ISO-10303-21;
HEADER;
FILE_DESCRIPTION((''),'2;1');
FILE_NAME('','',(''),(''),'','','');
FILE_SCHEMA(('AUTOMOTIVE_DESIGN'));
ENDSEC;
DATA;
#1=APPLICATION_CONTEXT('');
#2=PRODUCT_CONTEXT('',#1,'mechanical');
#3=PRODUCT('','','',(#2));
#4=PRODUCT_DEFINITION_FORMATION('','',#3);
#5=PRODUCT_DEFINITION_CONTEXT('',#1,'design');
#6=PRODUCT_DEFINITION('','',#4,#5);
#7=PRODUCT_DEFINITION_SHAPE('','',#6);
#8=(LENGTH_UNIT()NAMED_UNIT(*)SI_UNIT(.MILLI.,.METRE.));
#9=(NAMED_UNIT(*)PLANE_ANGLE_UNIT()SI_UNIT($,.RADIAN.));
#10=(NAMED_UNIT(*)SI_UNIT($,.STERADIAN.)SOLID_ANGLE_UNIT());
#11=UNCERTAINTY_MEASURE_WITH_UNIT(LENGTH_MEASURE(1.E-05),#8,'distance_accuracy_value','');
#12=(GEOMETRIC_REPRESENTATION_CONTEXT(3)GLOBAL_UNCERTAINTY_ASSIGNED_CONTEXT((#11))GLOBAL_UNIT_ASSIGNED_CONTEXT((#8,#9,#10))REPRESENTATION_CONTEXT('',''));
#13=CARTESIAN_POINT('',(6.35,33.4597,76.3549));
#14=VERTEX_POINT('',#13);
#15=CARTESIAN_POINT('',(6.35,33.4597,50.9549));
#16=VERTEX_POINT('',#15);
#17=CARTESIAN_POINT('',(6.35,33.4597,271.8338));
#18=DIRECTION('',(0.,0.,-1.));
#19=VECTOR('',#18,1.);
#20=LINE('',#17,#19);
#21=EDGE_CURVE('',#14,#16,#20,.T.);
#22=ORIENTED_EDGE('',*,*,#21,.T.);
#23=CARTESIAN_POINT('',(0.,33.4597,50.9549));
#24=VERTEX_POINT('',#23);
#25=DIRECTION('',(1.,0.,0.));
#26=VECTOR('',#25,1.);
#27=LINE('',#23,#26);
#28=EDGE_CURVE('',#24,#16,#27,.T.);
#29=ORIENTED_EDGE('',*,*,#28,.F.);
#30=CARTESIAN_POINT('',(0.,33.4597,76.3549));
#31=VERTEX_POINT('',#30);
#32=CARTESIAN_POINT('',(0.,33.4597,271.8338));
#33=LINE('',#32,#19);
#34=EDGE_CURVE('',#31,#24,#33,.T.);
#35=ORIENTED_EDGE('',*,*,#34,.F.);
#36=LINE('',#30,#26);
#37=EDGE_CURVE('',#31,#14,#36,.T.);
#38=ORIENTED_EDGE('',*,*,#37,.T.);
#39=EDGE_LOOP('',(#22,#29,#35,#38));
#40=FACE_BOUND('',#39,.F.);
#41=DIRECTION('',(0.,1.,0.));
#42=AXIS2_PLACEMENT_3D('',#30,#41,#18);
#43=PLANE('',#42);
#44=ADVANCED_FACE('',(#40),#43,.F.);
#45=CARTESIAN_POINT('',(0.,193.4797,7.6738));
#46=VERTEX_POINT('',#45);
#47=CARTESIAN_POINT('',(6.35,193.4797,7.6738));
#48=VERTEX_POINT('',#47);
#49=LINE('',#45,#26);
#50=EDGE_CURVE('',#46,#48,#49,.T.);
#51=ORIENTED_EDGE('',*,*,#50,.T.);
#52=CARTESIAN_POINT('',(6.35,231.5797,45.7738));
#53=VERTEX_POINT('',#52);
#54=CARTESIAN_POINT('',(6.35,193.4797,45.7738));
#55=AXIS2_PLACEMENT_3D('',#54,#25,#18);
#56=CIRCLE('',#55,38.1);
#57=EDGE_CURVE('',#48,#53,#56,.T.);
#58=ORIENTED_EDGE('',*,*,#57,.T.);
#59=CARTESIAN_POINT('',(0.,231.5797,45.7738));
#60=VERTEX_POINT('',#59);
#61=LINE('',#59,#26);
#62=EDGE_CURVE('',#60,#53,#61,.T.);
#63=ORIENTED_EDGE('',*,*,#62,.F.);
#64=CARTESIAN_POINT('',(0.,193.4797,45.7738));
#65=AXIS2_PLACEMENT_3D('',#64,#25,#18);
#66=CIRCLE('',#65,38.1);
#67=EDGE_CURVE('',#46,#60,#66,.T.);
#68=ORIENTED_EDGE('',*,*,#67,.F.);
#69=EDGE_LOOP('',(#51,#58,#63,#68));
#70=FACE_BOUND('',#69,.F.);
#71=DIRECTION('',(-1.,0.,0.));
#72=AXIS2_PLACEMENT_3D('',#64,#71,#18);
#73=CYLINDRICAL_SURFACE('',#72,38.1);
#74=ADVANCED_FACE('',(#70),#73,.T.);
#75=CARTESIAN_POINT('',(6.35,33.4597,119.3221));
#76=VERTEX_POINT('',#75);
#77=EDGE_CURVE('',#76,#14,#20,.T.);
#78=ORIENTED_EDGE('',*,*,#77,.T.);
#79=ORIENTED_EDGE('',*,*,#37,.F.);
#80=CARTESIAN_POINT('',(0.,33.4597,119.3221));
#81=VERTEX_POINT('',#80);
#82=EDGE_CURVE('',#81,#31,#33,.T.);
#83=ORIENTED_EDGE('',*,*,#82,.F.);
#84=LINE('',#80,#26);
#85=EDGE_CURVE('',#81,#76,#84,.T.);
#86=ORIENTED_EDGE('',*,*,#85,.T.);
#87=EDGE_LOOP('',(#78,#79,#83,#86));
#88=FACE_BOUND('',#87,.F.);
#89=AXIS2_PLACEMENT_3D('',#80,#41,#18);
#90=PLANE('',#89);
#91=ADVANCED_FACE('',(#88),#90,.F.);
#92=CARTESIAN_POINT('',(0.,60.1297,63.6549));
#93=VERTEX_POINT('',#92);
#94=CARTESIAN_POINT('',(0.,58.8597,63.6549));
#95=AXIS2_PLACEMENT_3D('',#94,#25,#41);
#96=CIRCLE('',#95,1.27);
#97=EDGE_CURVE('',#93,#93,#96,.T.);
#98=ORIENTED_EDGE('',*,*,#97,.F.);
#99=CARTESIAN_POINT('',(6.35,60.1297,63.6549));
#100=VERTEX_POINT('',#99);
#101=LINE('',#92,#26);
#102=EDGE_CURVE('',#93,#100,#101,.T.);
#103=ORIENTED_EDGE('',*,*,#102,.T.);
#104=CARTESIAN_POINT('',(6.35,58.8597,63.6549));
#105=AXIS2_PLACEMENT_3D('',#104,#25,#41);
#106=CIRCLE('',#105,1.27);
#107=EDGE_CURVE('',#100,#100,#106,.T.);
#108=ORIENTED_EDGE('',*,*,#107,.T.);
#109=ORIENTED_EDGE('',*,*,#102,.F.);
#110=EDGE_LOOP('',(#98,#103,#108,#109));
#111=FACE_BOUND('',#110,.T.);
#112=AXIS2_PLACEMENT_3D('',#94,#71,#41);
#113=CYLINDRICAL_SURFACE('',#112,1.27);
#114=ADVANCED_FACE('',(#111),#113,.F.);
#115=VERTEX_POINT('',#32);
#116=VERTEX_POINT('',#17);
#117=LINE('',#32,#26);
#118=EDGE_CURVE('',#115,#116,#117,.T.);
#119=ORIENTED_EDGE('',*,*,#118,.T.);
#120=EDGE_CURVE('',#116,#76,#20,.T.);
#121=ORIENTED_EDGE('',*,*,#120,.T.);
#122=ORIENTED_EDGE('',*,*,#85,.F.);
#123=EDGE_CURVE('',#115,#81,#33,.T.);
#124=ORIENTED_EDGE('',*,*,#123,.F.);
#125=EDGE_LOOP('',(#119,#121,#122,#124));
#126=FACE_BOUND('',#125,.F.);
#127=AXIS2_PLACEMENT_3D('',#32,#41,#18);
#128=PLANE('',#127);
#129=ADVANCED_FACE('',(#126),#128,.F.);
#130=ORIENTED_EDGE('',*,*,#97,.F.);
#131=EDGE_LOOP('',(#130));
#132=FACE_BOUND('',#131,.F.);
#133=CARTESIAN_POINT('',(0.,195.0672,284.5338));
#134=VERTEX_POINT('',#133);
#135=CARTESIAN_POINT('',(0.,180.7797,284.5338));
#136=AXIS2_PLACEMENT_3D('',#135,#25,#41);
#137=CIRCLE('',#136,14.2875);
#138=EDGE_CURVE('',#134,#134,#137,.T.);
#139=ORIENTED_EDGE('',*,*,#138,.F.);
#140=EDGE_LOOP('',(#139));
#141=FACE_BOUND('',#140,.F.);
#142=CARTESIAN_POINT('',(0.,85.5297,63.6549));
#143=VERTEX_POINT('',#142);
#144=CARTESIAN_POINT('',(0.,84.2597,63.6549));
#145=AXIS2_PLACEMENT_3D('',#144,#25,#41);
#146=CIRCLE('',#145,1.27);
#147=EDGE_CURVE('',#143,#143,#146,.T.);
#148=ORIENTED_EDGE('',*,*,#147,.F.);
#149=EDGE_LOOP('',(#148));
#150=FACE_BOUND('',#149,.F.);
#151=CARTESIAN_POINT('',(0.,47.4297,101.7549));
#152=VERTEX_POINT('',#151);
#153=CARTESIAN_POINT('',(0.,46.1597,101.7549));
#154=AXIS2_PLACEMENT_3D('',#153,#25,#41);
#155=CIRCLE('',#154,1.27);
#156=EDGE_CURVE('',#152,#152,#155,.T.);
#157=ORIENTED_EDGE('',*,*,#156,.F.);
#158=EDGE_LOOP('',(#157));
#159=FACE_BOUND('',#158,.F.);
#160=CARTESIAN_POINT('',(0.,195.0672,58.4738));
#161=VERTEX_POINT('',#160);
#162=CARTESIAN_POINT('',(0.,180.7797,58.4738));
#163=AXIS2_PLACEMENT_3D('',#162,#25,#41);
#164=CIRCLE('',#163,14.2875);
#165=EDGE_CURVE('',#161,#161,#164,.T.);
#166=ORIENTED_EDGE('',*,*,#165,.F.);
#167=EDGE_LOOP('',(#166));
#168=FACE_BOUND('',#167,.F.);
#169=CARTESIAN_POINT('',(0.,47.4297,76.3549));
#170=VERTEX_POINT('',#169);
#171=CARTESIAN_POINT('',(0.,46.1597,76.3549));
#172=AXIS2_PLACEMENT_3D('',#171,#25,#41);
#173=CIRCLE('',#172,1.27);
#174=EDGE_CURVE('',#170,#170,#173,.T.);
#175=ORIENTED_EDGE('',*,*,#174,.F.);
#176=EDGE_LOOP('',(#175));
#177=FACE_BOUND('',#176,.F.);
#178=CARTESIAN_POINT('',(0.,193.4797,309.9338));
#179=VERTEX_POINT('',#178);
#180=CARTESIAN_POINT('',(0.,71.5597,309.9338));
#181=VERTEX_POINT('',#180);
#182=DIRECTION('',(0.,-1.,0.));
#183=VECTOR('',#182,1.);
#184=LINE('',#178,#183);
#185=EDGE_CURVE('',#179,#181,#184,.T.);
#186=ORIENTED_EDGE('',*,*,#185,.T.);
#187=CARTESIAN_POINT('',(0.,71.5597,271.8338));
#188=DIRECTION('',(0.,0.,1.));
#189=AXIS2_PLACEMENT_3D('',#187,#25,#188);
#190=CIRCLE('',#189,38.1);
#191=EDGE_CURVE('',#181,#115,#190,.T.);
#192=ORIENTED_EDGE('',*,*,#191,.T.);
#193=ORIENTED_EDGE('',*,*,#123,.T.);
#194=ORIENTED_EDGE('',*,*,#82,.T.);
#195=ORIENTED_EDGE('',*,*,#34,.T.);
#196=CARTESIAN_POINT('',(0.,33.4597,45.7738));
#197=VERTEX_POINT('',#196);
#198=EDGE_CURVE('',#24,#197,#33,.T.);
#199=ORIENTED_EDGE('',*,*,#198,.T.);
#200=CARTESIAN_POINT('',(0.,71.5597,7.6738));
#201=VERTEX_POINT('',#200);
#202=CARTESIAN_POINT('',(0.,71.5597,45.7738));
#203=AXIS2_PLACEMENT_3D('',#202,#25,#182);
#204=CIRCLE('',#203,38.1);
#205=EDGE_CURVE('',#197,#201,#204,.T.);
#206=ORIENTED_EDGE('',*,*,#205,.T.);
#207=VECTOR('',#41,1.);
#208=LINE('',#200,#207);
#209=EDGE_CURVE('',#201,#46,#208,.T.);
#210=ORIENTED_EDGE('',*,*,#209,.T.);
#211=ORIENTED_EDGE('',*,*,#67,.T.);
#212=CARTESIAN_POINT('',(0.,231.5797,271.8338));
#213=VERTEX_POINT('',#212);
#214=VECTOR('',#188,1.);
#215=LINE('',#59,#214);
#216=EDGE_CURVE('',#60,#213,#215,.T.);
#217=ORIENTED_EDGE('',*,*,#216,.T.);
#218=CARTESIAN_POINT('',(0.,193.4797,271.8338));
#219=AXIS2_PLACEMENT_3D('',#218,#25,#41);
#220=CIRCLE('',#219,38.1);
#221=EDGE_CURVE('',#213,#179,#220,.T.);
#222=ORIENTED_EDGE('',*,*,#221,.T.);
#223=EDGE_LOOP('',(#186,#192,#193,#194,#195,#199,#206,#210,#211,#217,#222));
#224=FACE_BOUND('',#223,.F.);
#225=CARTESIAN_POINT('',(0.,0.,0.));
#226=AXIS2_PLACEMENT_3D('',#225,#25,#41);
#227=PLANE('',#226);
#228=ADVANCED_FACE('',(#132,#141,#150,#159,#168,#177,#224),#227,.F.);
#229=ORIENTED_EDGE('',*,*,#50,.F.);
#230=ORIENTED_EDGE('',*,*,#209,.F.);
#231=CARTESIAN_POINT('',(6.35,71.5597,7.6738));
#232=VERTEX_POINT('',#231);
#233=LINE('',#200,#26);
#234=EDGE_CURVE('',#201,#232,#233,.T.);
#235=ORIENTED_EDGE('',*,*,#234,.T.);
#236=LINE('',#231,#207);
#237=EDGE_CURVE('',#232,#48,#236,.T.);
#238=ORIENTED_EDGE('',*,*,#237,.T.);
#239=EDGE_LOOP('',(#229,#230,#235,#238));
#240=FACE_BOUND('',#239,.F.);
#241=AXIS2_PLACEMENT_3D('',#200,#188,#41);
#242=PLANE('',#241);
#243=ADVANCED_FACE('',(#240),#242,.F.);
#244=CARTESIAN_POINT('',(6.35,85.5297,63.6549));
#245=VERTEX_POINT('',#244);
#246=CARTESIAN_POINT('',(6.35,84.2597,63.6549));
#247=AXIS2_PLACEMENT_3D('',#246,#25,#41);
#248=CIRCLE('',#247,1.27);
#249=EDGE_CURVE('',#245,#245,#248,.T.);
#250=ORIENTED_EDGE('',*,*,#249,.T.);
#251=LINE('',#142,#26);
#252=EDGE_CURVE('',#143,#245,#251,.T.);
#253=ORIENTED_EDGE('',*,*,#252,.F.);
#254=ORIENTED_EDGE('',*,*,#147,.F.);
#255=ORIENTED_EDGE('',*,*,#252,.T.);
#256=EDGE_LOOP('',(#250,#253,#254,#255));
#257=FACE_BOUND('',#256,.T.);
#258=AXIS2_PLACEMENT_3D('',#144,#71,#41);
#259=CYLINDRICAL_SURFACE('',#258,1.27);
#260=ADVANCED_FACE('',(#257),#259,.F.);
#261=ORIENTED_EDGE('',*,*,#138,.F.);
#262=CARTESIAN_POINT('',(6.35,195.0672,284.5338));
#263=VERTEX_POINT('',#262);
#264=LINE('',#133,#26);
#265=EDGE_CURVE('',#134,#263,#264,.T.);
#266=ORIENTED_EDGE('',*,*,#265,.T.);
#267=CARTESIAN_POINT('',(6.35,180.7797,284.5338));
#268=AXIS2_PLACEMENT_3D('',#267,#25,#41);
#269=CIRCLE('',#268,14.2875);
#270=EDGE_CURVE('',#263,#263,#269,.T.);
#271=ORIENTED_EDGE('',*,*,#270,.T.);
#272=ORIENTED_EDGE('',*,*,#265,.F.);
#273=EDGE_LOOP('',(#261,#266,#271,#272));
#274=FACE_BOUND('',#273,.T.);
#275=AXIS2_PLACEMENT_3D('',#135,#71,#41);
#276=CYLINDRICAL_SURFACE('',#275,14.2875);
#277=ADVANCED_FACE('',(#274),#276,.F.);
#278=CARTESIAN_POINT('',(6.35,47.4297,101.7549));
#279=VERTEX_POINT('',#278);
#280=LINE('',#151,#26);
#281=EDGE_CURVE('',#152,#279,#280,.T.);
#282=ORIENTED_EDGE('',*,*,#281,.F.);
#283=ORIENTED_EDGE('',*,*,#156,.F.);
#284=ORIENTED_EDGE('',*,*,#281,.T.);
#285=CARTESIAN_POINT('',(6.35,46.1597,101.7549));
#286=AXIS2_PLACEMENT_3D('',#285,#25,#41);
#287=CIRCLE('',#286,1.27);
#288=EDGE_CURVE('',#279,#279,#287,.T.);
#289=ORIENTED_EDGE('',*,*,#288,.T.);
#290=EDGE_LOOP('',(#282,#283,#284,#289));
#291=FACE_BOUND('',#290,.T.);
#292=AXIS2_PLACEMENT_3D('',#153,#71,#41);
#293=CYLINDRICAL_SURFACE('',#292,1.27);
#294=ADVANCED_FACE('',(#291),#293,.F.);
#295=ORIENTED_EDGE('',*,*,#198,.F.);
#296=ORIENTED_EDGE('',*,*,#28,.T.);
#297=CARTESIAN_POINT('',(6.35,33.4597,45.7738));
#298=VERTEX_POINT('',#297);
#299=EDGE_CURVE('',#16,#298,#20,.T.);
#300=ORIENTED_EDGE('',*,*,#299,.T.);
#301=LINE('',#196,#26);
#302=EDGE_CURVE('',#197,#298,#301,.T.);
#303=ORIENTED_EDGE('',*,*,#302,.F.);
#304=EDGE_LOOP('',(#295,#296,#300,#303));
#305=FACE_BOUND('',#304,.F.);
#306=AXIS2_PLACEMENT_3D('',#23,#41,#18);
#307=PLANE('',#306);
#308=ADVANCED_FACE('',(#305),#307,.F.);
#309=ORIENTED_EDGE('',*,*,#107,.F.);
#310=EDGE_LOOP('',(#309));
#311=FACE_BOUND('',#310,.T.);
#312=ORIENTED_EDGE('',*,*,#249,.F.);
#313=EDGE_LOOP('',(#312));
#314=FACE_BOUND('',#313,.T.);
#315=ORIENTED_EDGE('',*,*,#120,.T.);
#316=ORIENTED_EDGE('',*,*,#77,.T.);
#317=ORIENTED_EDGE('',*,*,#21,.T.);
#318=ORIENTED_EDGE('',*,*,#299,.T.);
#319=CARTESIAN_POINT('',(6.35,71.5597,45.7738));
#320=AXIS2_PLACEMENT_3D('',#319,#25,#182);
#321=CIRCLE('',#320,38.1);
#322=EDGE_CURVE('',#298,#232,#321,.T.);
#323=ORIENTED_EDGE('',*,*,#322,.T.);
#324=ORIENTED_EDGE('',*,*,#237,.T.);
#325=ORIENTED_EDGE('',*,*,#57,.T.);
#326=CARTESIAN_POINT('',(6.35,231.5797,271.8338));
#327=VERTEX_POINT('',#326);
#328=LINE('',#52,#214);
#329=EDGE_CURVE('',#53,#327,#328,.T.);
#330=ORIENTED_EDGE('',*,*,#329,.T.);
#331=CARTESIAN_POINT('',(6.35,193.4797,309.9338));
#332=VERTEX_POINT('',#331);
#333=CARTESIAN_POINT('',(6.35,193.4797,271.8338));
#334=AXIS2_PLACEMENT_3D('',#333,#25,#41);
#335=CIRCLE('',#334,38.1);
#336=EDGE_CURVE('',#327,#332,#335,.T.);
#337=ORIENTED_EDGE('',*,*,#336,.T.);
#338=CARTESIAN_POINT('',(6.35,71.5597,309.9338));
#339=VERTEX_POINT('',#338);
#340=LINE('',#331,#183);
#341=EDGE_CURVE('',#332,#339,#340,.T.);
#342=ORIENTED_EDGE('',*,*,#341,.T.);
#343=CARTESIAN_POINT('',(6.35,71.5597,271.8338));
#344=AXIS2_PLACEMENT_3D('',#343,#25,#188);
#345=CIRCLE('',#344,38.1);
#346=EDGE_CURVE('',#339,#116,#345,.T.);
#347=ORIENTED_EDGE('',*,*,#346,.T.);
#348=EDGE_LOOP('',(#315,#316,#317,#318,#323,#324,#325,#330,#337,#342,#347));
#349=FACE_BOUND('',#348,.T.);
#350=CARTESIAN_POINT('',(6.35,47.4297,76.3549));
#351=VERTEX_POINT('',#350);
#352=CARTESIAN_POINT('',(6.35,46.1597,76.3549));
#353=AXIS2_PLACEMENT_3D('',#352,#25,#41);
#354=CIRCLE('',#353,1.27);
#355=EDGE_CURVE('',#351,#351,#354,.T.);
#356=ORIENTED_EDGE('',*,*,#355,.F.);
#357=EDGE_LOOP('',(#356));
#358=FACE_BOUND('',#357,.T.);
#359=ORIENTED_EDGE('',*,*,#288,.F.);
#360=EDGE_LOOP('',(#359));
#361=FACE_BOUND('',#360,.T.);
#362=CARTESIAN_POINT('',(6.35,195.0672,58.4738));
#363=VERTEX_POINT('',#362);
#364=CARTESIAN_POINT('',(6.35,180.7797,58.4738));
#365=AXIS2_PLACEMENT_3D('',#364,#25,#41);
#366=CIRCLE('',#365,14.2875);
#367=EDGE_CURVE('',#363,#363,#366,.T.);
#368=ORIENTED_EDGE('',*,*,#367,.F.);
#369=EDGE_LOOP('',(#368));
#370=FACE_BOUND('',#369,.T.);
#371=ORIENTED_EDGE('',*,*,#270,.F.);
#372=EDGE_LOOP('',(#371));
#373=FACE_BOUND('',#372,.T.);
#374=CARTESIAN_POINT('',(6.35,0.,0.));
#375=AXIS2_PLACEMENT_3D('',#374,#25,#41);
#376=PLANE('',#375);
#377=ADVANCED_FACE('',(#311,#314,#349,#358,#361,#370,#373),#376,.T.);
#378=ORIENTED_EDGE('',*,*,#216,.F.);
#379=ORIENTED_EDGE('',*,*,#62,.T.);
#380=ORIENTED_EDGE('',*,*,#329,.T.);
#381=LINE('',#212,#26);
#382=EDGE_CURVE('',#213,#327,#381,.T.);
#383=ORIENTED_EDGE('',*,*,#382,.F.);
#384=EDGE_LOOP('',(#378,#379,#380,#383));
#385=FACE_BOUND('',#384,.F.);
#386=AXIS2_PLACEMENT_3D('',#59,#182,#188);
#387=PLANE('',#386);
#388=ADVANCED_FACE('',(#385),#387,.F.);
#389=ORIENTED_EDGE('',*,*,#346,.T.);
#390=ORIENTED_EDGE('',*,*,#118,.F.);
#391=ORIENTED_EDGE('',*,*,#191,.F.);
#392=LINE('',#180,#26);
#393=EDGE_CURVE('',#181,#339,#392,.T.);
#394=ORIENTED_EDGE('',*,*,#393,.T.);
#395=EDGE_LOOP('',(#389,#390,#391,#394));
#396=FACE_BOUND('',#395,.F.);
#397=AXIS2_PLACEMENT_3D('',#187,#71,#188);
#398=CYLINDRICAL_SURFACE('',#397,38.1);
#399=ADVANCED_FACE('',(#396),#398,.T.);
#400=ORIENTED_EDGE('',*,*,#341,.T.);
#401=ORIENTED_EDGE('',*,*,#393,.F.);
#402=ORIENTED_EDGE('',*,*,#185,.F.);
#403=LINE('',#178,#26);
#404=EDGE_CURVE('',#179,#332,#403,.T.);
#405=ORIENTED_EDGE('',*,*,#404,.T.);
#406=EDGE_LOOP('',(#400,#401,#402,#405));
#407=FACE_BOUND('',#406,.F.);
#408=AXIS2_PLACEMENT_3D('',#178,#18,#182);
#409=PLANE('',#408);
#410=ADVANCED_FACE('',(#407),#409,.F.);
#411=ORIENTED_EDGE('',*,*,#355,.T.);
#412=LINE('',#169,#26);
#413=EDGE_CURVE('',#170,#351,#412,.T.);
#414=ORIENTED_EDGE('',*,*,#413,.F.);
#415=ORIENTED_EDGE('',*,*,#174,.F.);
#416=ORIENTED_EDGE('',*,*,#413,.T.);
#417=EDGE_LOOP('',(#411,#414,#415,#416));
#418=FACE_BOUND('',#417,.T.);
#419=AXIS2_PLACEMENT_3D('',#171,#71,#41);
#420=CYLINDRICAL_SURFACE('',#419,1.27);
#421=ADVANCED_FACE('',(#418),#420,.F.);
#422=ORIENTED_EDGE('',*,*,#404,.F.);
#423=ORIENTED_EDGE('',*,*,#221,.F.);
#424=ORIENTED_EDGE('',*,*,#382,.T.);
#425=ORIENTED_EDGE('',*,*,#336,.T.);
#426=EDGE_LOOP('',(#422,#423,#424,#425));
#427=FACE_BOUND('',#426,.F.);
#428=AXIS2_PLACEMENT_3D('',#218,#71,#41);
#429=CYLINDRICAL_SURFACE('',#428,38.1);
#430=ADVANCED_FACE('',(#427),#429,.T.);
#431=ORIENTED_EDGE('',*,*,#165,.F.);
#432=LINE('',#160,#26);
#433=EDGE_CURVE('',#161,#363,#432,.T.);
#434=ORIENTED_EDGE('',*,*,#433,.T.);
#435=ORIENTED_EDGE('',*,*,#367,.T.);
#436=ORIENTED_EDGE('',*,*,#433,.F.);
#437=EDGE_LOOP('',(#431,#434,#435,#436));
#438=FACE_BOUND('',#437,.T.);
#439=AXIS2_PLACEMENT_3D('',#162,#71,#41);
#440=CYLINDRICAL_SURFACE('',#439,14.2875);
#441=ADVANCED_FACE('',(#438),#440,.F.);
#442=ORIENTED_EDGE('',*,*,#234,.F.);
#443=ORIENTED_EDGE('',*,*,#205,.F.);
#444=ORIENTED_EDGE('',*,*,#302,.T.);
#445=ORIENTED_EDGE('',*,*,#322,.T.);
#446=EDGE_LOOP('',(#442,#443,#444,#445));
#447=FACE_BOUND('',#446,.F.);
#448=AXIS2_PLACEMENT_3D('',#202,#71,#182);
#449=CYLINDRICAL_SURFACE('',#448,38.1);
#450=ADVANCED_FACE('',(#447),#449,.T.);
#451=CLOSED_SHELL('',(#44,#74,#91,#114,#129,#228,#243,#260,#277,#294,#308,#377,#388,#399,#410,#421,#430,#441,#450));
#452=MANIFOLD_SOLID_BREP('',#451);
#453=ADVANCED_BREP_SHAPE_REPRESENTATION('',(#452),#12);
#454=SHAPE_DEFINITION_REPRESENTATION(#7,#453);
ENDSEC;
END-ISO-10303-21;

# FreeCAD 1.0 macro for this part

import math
import FreeCAD as App
import Part
import Sketcher
Q = App.Units.Quantity

doc = App.newDocument("Part")
body = doc.addObject("PartDesign::Body", "Body")

sketch1 = body.newObject("Sketcher::SketchObject", "Sketch")
sketch1.AttachmentSupport = (doc.getObject("YZ_Plane"), [""])
sketch1.MapMode = "FlatFace"
sketch1.addGeometry(Part.ArcOfCircle(Part.Circle(App.Vector(71.5597, 45.7738, 0), App.Vector(0, 0, 1), 38.1), math.radians(180), math.radians(270)), False)
sketch1.addGeometry(Part.LineSegment(App.Vector(71.5597, 7.6738, 0), App.Vector(193.4797, 7.6738, 0)), False)
sketch1.addGeometry(Part.ArcOfCircle(Part.Circle(App.Vector(193.4797, 45.7738, 0), App.Vector(0, 0, 1), 38.1), math.radians(-90), math.radians(0)), False)
sketch1.addGeometry(Part.LineSegment(App.Vector(231.5797, 45.7738, 0), App.Vector(231.5797, 271.8338, 0)), False)
sketch1.addGeometry(Part.ArcOfCircle(Part.Circle(App.Vector(193.4797, 271.8338, 0), App.Vector(0, 0, 1), 38.1), math.radians(0), math.radians(90)), False)
sketch1.addGeometry(Part.LineSegment(App.Vector(193.4797, 309.9338, 0), App.Vector(71.5597, 309.9338, 0)), False)
sketch1.addGeometry(Part.ArcOfCircle(Part.Circle(App.Vector(71.5597, 271.8338, 0), App.Vector(0, 0, 1), 38.1), math.radians(90), math.radians(180)), False)
sketch1.addGeometry(Part.LineSegment(App.Vector(33.4597, 271.8338, 0), App.Vector(33.4597, 45.7738, 0)), False)
sketch1.addGeometry(Part.Circle(App.Vector(46.1597, 76.3549, 0), App.Vector(0, 0, 1), 1.27), False)
sketch1.addGeometry(Part.Circle(App.Vector(58.8597, 63.6549, 0), App.Vector(0, 0, 1), 1.27), False)
sketch1.addGeometry(Part.Circle(App.Vector(84.2597, 63.6549, 0), App.Vector(0, 0, 1), 1.27), False)
sketch1.addGeometry(Part.Circle(App.Vector(46.1597, 101.7549, 0), App.Vector(0, 0, 1), 1.27), False)
sketch1.addGeometry(Part.Circle(App.Vector(180.7797, 58.4738, 0), App.Vector(0, 0, 1), 14.2875), False)
sketch1.addGeometry(Part.Circle(App.Vector(180.7797, 284.5338, 0), App.Vector(0, 0, 1), 14.2875), False)
sketch1.addConstraint(Sketcher.Constraint("Tangent", 0, 2, 1, 1))
sketch1.addConstraint(Sketcher.Constraint("Tangent", 1, 2, 2, 1))
sketch1.addConstraint(Sketcher.Constraint("Tangent", 2, 2, 3, 1))
sketch1.addConstraint(Sketcher.Constraint("Tangent", 3, 2, 4, 1))
sketch1.addConstraint(Sketcher.Constraint("Tangent", 4, 2, 5, 1))
sketch1.addConstraint(Sketcher.Constraint("Tangent", 5, 2, 6, 1))
sketch1.addConstraint(Sketcher.Constraint("Tangent", 6, 2, 7, 1))
sketch1.addConstraint(Sketcher.Constraint("Tangent", 7, 2, 0, 1))
sketch1.addConstraint(Sketcher.Constraint("Horizontal", 1))
sketch1.addConstraint(Sketcher.Constraint("Vertical", 3))
sketch1.addConstraint(Sketcher.Constraint("Horizontal", 5))
sketch1.addConstraint(Sketcher.Constraint("Vertical", 7))
sketch1.addConstraint(Sketcher.Constraint("Equal", 0, 2))
sketch1.addConstraint(Sketcher.Constraint("Equal", 2, 4))
sketch1.addConstraint(Sketcher.Constraint("Equal", 4, 6))
sketch1.addConstraint(Sketcher.Constraint("Equal", 8, 9))
sketch1.addConstraint(Sketcher.Constraint("Equal", 9, 10))
sketch1.addConstraint(Sketcher.Constraint("Equal", 10, 11))
sketch1.addConstraint(Sketcher.Constraint("Equal", 12, 13))
sketch1.addConstraint(Sketcher.Constraint("Horizontal", 9, 3, 10, 3))
sketch1.addConstraint(Sketcher.Constraint("Vertical", 8, 3, 11, 3))
sketch1.addConstraint(Sketcher.Constraint("Vertical", 12, 3, 13, 3))
sketch1.addConstraint(Sketcher.Constraint("Diameter", 8, Q("0.1 in")))
sketch1.addConstraint(Sketcher.Constraint("Radius", 0, Q("1.5 in")))
sketch1.addConstraint(Sketcher.Constraint("Diameter", 12, Q("1.125 in")))
sketch1.addConstraint(Sketcher.Constraint("DistanceX", 8, 3, 0, 3, Q("1 in")))
sketch1.addConstraint(Sketcher.Constraint("DistanceX", 9, 3, 10, 3, Q("1 in")))
sketch1.addConstraint(Sketcher.Constraint("DistanceY", 8, 3, 11, 3, Q("1 in")))
sketch1.addConstraint(Sketcher.Constraint("DistanceY", 13, 3, 4, 2, Q("1 in")))
sketch1.addConstraint(Sketcher.Constraint("DistanceX", 7, 2, 9, 3, Q("1 in")))
sketch1.addConstraint(Sketcher.Constraint("DistanceY", 9, 3, 8, 3, Q("0.5 in")))
sketch1.addConstraint(Sketcher.Constraint("DistanceX", 12, 3, 2, 3, Q("0.5 in")))
sketch1.addConstraint(Sketcher.Constraint("DistanceY", 2, 3, 12, 3, Q("0.5 in")))
sketch1.addConstraint(Sketcher.Constraint("DistanceX", 1, 1, 1, 2, Q("4.8 in")))
sketch1.addConstraint(Sketcher.Constraint("DistanceY", 3, 1, 3, 2, Q("8.9 in")))
sketch1.addConstraint(Sketcher.Constraint("DistanceX", -1, 1, 0, 3, Q("2.8173 in")))
sketch1.addConstraint(Sketcher.Constraint("DistanceY", -1, 1, 8, 3, Q("3.0061 in")))
sketch1.addConstraint(Sketcher.Constraint("DistanceY", -1, 1, 0, 3, Q("45.7738 mm")))
pad1 = body.newObject("PartDesign::Pad", "Pad")
pad1.Profile = sketch1
pad1.Length = Q("0.25 in")

doc.recompute()
